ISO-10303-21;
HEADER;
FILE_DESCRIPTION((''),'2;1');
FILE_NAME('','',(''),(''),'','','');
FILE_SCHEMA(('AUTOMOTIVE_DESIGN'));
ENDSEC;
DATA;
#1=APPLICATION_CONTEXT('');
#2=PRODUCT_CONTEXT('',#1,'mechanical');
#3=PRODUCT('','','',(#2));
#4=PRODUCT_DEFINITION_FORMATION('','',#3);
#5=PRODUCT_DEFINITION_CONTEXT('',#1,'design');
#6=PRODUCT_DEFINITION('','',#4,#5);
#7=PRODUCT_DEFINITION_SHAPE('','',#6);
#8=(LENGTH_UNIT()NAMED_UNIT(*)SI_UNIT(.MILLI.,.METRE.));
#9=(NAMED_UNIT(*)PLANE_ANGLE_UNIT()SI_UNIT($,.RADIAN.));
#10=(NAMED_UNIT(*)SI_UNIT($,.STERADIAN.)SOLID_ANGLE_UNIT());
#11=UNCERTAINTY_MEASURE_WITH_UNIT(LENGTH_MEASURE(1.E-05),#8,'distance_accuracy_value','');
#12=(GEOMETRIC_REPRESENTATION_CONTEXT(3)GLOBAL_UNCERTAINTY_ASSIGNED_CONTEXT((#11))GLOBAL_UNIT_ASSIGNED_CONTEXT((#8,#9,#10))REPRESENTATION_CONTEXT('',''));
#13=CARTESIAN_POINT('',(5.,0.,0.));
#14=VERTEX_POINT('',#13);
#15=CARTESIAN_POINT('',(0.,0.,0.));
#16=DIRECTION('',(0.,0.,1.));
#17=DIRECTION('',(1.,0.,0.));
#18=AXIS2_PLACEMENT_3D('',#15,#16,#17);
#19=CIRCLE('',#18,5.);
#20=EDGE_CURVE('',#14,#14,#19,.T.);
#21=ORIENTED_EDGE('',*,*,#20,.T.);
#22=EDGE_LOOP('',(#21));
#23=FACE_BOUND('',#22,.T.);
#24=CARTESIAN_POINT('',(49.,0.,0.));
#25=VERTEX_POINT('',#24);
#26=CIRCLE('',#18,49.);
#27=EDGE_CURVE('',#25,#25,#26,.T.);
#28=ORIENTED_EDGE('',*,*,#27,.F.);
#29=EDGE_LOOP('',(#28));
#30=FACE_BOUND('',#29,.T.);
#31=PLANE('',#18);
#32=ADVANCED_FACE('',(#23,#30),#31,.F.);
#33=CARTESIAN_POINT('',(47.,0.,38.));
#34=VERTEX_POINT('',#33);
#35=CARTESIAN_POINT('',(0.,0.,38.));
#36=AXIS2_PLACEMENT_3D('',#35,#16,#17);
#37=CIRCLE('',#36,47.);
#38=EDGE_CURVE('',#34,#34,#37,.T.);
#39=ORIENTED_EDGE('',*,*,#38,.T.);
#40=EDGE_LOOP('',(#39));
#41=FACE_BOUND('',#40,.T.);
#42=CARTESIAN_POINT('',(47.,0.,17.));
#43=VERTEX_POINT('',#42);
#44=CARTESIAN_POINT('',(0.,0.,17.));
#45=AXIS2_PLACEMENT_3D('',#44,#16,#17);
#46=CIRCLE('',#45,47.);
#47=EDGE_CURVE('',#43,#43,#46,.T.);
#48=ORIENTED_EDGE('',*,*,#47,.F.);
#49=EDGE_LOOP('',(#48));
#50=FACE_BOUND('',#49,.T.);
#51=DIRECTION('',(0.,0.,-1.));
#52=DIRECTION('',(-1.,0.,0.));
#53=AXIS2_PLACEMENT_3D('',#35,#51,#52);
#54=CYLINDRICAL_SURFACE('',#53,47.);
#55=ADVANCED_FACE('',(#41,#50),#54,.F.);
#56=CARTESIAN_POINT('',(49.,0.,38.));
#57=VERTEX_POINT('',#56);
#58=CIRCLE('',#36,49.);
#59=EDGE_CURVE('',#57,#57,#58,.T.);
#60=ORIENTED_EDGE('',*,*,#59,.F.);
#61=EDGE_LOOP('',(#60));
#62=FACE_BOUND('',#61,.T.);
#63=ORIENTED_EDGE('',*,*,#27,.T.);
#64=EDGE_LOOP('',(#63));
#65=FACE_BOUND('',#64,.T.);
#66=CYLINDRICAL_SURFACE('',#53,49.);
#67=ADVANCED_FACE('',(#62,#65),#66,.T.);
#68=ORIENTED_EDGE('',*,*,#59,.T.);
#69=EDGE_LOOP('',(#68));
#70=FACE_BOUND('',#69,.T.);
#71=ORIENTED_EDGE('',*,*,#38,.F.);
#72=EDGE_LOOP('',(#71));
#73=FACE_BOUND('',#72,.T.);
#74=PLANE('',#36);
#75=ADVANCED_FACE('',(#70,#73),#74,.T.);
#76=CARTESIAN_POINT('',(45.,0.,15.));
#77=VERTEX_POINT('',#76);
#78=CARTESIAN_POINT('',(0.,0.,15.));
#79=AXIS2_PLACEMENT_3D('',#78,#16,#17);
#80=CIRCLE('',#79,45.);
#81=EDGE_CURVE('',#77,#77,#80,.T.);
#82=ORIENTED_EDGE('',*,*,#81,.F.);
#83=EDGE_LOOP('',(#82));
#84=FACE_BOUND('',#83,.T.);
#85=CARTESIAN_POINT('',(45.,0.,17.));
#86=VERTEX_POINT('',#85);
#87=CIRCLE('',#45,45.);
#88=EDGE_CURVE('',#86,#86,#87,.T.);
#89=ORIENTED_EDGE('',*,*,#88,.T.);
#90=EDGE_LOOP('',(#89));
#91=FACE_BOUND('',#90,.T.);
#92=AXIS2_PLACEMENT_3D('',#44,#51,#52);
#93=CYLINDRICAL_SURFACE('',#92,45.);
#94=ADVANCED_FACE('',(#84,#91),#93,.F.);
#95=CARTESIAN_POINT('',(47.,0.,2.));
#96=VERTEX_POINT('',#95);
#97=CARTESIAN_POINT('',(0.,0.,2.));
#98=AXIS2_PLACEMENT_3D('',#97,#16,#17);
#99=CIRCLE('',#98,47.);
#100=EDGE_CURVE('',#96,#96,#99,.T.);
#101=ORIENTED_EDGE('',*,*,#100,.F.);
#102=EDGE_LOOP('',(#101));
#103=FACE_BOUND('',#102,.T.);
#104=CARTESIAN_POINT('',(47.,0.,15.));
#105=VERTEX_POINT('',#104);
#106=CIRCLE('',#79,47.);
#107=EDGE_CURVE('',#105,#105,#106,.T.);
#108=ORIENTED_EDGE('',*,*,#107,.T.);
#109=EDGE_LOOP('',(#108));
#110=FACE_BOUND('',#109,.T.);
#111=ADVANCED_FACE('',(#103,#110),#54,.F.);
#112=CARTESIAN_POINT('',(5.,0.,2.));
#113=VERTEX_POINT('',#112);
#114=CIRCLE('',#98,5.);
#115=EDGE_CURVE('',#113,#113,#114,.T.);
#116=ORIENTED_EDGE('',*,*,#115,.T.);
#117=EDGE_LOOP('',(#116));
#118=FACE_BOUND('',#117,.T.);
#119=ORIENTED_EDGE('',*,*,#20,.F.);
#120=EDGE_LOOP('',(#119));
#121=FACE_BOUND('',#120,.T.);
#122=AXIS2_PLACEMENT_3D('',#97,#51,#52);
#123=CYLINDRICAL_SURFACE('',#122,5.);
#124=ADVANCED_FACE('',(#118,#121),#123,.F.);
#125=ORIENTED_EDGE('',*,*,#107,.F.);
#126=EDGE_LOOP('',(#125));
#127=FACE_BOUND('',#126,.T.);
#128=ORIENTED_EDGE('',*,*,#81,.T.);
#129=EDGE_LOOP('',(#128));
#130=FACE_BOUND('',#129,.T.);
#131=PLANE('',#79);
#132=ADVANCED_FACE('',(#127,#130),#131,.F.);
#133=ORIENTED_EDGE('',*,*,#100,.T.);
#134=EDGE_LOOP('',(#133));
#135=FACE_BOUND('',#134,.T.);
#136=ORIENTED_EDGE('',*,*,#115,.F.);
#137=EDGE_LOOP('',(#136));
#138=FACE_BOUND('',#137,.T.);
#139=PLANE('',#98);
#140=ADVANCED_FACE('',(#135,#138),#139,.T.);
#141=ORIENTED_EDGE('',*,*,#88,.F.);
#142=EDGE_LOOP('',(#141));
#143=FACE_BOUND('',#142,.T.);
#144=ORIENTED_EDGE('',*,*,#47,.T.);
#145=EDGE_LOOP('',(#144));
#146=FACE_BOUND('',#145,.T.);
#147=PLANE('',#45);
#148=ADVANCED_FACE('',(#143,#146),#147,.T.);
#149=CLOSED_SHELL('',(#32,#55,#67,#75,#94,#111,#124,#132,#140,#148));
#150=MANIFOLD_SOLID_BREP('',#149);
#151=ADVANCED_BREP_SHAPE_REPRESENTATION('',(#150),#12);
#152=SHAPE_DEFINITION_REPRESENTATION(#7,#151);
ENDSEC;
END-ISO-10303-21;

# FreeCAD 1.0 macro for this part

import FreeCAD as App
import Part
import Sketcher

V = App.Vector

doc = App.newDocument("Part")
body = doc.addObject("PartDesign::Body", "Body")

# Sketch on XY plane
sketch1 = body.newObject("Sketcher::SketchObject", "Sketch")
sketch1.AttachmentSupport = (doc.getObject("XY_Plane"), [""])
sketch1.MapMode = "FlatFace"
sketch1.addGeometry([
    Part.Circle(V(0, 0, 0), V(0, 0, 1), 49),
    Part.Circle(V(0, 0, 0), V(0, 0, 1), 47),
], False)
sketch1.addConstraint([
    Sketcher.Constraint("Coincident", 0, 3, -1, 1),
    Sketcher.Constraint("Coincident", 1, 3, -1, 1),
    Sketcher.Constraint("Diameter", 0, 98.0),
    Sketcher.Constraint("Diameter", 1, 94.0),
])
pad1 = body.newObject("PartDesign::Pad", "Pad")
pad1.Profile = sketch1
pad1.Length = 38

# Sketch on XY plane
sketch2 = body.newObject("Sketcher::SketchObject", "Sketch001")
sketch2.AttachmentSupport = (doc.getObject("XY_Plane"), [""])
sketch2.MapMode = "FlatFace"
sketch2.addGeometry([
    Part.Circle(V(0, 0, 0), V(0, 0, 1), 49),
    Part.Circle(V(0, 0, 0), V(0, 0, 1), 5),
], False)
sketch2.addConstraint([
    Sketcher.Constraint("Coincident", 0, 3, -1, 1),
    Sketcher.Constraint("Coincident", 1, 3, -1, 1),
    Sketcher.Constraint("Diameter", 0, 98.0),
    Sketcher.Constraint("Diameter", 1, 10.0),
])
pad2 = body.newObject("PartDesign::Pad", "Pad001")
pad2.Profile = sketch2
pad2.Length = 2

# Sketch on XY plane
sketch3 = body.newObject("Sketcher::SketchObject", "Sketch002")
sketch3.AttachmentSupport = (doc.getObject("XY_Plane"), [""])
sketch3.MapMode = "FlatFace"
sketch3.AttachmentOffset = App.Placement(V(0, 0, 15), App.Rotation())
sketch3.addGeometry([
    Part.Circle(V(0, 0, 0), V(0, 0, 1), 49),
    Part.Circle(V(0, 0, 0), V(0, 0, 1), 45),
], False)
sketch3.addConstraint([
    Sketcher.Constraint("Coincident", 0, 3, -1, 1),
    Sketcher.Constraint("Coincident", 1, 3, -1, 1),
    Sketcher.Constraint("Diameter", 0, 98.0),
    Sketcher.Constraint("Diameter", 1, 90.0),
])
pad3 = body.newObject("PartDesign::Pad", "Pad002")
pad3.Profile = sketch3
pad3.Length = 2

doc.recompute()
